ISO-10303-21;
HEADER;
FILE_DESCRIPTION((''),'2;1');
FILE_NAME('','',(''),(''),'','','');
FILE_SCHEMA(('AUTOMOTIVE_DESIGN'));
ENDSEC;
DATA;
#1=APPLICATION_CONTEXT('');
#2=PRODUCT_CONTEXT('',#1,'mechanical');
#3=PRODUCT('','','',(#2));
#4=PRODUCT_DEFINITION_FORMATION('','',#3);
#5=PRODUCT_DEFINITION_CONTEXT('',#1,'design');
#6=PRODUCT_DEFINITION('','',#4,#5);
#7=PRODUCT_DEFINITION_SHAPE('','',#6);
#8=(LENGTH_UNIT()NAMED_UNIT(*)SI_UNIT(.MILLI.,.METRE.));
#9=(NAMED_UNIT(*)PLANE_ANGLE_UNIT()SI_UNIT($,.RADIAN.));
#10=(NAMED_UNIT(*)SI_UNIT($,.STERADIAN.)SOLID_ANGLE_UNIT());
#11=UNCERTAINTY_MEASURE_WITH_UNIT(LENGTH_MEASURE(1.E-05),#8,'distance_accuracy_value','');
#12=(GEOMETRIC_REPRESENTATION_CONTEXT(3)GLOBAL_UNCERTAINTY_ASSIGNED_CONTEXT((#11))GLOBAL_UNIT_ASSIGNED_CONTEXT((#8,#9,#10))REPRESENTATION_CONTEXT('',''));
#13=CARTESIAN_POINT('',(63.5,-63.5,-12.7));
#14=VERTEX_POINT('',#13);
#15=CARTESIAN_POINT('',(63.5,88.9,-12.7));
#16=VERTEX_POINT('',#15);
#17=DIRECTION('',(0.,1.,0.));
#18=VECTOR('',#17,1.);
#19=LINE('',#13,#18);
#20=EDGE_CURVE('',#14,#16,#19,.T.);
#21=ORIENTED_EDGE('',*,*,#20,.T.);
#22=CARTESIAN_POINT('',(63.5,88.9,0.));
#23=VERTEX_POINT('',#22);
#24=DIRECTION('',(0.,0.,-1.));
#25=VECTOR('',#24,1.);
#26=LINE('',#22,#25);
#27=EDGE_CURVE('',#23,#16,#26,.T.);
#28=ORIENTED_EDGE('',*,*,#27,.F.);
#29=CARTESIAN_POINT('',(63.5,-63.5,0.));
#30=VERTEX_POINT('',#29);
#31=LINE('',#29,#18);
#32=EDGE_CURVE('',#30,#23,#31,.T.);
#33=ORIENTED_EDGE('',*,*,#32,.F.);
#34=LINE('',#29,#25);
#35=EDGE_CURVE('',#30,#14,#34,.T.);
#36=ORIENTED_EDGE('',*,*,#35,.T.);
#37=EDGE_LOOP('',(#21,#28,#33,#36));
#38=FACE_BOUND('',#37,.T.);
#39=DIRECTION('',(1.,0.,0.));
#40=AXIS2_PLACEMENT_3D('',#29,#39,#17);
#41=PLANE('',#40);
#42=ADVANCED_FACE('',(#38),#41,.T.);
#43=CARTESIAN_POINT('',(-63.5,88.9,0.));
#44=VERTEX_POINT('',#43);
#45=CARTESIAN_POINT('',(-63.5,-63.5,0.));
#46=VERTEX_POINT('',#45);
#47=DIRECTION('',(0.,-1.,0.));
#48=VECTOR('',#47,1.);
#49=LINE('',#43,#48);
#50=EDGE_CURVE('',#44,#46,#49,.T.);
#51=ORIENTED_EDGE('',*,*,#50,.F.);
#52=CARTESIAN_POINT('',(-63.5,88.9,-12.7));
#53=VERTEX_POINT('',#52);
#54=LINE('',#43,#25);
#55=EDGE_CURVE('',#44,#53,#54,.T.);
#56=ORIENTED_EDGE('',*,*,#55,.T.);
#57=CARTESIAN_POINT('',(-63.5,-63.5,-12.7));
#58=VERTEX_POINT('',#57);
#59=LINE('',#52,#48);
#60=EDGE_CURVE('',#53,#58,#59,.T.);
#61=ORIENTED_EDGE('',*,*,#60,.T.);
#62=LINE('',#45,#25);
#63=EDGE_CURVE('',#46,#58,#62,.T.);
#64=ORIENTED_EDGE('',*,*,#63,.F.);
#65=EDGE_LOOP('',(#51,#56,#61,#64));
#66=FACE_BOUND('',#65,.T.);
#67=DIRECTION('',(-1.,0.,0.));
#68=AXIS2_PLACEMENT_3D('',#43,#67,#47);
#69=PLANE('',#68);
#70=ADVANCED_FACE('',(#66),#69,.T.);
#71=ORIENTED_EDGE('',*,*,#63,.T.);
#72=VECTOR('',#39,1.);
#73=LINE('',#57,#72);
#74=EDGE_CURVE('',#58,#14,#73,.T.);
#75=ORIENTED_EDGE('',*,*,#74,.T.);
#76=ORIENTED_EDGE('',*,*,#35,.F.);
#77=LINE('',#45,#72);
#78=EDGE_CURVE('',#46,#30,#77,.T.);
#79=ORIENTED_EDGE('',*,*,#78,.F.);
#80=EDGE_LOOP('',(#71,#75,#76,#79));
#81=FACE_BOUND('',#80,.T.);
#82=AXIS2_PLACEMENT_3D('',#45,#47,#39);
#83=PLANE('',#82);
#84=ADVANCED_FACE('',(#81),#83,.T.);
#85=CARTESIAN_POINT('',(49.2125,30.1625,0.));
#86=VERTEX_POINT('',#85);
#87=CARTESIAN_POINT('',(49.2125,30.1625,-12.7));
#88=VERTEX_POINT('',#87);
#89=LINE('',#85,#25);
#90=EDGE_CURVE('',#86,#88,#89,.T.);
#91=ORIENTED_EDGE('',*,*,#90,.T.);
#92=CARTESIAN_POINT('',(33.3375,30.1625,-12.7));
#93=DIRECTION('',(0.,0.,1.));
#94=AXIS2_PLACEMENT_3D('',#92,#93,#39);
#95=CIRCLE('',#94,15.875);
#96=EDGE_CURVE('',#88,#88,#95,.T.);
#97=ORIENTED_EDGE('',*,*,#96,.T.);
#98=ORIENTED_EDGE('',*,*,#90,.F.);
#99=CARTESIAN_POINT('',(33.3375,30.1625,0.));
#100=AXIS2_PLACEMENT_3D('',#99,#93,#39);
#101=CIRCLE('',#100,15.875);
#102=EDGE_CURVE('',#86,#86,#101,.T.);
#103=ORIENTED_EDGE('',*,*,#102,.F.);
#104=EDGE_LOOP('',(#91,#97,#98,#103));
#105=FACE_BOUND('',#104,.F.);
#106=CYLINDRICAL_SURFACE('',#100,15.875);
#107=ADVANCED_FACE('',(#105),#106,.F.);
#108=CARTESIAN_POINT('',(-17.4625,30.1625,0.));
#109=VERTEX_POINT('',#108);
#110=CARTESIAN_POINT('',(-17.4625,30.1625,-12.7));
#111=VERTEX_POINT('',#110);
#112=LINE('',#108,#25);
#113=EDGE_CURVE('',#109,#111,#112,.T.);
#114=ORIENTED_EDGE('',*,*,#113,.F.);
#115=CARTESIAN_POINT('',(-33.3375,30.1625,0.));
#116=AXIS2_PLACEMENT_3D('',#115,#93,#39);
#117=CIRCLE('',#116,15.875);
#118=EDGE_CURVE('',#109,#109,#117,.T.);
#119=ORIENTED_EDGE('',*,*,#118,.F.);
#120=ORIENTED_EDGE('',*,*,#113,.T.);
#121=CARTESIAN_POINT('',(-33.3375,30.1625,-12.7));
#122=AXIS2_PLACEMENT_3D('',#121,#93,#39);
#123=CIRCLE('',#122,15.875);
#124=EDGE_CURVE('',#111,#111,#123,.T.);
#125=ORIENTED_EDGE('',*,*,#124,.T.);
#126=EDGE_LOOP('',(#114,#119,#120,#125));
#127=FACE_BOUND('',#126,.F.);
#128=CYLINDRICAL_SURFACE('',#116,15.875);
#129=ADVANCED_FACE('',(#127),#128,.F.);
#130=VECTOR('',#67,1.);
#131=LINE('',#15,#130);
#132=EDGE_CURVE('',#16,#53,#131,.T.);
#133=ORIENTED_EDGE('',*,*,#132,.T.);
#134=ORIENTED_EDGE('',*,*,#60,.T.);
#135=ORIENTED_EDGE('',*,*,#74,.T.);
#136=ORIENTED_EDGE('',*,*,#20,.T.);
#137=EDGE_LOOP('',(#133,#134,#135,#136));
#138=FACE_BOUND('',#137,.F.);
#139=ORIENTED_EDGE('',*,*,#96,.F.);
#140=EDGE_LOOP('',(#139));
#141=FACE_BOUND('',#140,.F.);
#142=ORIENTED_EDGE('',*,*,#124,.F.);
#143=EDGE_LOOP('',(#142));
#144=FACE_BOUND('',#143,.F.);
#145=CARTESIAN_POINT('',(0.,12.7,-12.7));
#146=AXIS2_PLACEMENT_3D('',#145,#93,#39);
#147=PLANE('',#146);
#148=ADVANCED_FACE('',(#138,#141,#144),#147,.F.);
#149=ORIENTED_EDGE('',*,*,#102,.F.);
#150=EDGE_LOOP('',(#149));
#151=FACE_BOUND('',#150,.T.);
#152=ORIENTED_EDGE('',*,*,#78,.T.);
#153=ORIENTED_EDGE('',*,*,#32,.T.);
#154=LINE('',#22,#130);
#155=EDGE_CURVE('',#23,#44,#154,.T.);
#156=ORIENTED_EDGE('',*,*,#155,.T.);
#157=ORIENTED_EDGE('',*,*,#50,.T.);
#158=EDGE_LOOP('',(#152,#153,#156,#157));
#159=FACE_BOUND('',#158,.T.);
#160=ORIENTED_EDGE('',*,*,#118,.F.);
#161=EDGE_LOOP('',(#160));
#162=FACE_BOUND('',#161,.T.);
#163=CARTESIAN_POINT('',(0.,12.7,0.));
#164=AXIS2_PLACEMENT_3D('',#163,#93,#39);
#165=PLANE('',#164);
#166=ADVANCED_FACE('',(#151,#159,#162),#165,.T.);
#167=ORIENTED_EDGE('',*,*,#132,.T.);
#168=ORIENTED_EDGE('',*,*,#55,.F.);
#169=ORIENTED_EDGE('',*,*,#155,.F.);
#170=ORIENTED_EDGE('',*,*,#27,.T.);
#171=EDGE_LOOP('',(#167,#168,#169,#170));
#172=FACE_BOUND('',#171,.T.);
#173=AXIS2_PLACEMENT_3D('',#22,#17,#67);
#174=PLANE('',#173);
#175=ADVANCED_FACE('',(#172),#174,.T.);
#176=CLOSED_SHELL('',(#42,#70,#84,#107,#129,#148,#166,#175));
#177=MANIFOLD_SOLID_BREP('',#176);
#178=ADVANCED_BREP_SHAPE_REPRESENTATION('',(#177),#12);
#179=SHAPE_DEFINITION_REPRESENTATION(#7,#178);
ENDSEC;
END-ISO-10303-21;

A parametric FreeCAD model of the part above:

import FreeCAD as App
import Part
import Sketcher
Q = App.Units.Quantity

doc = App.newDocument("Part")
body = doc.addObject("PartDesign::Body", "Body")

sketch1 = body.newObject("Sketcher::SketchObject", "Sketch")
sketch1.AttachmentSupport = (doc.getObject("XY_Plane"), [""])
sketch1.MapMode = "FlatFace"
sketch1.addGeometry([
    Part.LineSegment(App.Vector(-64, -64, 0), App.Vector(64, -64, 0)),
    Part.LineSegment(App.Vector(64, -64, 0), App.Vector(64, 89, 0)),
    Part.LineSegment(App.Vector(64, 89, 0), App.Vector(-64, 89, 0)),
    Part.LineSegment(App.Vector(-64, 89, 0), App.Vector(-64, -64, 0)),
], False)
sketch1.addConstraint([
    Sketcher.Constraint("Coincident", 0, 2, 1, 1),
    Sketcher.Constraint("Coincident", 1, 2, 2, 1),
    Sketcher.Constraint("Coincident", 2, 2, 3, 1),
    Sketcher.Constraint("Coincident", 3, 2, 0, 1),
    Sketcher.Constraint("Horizontal", 0),
    Sketcher.Constraint("Vertical", 1),
    Sketcher.Constraint("Horizontal", 2),
    Sketcher.Constraint("Vertical", 3),
    Sketcher.Constraint("DistanceX", 0, 1, 0, 2, Q("5 in")),
    Sketcher.Constraint("DistanceY", 1, 1, 1, 2, Q("6 in")),
    Sketcher.Constraint("DistanceX", -1, 1, 0, 2, Q("2.5 in")),
    Sketcher.Constraint("DistanceY", 0, 2, -1, 1, Q("2.5 in")),
])
pad1 = body.newObject("PartDesign::Pad", "Pad")
pad1.Profile = sketch1
pad1.Length = Q("0.5 in")
pad1.Reversed = True

sketch2 = body.newObject("Sketcher::SketchObject", "Sketch001")
sketch2.AttachmentSupport = (doc.getObject("XY_Plane"), [""])
sketch2.MapMode = "FlatFace"
sketch2.addGeometry([
    Part.Circle(App.Vector(-33, 30, 0), App.Vector(0, 0, 1), 16),
    Part.Circle(App.Vector(33, 30, 0), App.Vector(0, 0, 1), 16),
], False)
sketch2.addConstraint([
    Sketcher.Constraint("Equal", 0, 1),
    Sketcher.Constraint("Symmetric", 0, 3, 1, 3, -2),
    Sketcher.Constraint("Diameter", 0, Q("1.25 in")),
    Sketcher.Constraint("DistanceX", 0, 3, -1, 1, Q("1.3125 in")),
    Sketcher.Constraint("DistanceY", -1, 1, 0, 3, Q("1.1875 in")),
])
pocket1 = body.newObject("PartDesign::Pocket", "Pocket")
pocket1.Profile = sketch2
pocket1.Length = Q("1 in")

doc.recompute()
